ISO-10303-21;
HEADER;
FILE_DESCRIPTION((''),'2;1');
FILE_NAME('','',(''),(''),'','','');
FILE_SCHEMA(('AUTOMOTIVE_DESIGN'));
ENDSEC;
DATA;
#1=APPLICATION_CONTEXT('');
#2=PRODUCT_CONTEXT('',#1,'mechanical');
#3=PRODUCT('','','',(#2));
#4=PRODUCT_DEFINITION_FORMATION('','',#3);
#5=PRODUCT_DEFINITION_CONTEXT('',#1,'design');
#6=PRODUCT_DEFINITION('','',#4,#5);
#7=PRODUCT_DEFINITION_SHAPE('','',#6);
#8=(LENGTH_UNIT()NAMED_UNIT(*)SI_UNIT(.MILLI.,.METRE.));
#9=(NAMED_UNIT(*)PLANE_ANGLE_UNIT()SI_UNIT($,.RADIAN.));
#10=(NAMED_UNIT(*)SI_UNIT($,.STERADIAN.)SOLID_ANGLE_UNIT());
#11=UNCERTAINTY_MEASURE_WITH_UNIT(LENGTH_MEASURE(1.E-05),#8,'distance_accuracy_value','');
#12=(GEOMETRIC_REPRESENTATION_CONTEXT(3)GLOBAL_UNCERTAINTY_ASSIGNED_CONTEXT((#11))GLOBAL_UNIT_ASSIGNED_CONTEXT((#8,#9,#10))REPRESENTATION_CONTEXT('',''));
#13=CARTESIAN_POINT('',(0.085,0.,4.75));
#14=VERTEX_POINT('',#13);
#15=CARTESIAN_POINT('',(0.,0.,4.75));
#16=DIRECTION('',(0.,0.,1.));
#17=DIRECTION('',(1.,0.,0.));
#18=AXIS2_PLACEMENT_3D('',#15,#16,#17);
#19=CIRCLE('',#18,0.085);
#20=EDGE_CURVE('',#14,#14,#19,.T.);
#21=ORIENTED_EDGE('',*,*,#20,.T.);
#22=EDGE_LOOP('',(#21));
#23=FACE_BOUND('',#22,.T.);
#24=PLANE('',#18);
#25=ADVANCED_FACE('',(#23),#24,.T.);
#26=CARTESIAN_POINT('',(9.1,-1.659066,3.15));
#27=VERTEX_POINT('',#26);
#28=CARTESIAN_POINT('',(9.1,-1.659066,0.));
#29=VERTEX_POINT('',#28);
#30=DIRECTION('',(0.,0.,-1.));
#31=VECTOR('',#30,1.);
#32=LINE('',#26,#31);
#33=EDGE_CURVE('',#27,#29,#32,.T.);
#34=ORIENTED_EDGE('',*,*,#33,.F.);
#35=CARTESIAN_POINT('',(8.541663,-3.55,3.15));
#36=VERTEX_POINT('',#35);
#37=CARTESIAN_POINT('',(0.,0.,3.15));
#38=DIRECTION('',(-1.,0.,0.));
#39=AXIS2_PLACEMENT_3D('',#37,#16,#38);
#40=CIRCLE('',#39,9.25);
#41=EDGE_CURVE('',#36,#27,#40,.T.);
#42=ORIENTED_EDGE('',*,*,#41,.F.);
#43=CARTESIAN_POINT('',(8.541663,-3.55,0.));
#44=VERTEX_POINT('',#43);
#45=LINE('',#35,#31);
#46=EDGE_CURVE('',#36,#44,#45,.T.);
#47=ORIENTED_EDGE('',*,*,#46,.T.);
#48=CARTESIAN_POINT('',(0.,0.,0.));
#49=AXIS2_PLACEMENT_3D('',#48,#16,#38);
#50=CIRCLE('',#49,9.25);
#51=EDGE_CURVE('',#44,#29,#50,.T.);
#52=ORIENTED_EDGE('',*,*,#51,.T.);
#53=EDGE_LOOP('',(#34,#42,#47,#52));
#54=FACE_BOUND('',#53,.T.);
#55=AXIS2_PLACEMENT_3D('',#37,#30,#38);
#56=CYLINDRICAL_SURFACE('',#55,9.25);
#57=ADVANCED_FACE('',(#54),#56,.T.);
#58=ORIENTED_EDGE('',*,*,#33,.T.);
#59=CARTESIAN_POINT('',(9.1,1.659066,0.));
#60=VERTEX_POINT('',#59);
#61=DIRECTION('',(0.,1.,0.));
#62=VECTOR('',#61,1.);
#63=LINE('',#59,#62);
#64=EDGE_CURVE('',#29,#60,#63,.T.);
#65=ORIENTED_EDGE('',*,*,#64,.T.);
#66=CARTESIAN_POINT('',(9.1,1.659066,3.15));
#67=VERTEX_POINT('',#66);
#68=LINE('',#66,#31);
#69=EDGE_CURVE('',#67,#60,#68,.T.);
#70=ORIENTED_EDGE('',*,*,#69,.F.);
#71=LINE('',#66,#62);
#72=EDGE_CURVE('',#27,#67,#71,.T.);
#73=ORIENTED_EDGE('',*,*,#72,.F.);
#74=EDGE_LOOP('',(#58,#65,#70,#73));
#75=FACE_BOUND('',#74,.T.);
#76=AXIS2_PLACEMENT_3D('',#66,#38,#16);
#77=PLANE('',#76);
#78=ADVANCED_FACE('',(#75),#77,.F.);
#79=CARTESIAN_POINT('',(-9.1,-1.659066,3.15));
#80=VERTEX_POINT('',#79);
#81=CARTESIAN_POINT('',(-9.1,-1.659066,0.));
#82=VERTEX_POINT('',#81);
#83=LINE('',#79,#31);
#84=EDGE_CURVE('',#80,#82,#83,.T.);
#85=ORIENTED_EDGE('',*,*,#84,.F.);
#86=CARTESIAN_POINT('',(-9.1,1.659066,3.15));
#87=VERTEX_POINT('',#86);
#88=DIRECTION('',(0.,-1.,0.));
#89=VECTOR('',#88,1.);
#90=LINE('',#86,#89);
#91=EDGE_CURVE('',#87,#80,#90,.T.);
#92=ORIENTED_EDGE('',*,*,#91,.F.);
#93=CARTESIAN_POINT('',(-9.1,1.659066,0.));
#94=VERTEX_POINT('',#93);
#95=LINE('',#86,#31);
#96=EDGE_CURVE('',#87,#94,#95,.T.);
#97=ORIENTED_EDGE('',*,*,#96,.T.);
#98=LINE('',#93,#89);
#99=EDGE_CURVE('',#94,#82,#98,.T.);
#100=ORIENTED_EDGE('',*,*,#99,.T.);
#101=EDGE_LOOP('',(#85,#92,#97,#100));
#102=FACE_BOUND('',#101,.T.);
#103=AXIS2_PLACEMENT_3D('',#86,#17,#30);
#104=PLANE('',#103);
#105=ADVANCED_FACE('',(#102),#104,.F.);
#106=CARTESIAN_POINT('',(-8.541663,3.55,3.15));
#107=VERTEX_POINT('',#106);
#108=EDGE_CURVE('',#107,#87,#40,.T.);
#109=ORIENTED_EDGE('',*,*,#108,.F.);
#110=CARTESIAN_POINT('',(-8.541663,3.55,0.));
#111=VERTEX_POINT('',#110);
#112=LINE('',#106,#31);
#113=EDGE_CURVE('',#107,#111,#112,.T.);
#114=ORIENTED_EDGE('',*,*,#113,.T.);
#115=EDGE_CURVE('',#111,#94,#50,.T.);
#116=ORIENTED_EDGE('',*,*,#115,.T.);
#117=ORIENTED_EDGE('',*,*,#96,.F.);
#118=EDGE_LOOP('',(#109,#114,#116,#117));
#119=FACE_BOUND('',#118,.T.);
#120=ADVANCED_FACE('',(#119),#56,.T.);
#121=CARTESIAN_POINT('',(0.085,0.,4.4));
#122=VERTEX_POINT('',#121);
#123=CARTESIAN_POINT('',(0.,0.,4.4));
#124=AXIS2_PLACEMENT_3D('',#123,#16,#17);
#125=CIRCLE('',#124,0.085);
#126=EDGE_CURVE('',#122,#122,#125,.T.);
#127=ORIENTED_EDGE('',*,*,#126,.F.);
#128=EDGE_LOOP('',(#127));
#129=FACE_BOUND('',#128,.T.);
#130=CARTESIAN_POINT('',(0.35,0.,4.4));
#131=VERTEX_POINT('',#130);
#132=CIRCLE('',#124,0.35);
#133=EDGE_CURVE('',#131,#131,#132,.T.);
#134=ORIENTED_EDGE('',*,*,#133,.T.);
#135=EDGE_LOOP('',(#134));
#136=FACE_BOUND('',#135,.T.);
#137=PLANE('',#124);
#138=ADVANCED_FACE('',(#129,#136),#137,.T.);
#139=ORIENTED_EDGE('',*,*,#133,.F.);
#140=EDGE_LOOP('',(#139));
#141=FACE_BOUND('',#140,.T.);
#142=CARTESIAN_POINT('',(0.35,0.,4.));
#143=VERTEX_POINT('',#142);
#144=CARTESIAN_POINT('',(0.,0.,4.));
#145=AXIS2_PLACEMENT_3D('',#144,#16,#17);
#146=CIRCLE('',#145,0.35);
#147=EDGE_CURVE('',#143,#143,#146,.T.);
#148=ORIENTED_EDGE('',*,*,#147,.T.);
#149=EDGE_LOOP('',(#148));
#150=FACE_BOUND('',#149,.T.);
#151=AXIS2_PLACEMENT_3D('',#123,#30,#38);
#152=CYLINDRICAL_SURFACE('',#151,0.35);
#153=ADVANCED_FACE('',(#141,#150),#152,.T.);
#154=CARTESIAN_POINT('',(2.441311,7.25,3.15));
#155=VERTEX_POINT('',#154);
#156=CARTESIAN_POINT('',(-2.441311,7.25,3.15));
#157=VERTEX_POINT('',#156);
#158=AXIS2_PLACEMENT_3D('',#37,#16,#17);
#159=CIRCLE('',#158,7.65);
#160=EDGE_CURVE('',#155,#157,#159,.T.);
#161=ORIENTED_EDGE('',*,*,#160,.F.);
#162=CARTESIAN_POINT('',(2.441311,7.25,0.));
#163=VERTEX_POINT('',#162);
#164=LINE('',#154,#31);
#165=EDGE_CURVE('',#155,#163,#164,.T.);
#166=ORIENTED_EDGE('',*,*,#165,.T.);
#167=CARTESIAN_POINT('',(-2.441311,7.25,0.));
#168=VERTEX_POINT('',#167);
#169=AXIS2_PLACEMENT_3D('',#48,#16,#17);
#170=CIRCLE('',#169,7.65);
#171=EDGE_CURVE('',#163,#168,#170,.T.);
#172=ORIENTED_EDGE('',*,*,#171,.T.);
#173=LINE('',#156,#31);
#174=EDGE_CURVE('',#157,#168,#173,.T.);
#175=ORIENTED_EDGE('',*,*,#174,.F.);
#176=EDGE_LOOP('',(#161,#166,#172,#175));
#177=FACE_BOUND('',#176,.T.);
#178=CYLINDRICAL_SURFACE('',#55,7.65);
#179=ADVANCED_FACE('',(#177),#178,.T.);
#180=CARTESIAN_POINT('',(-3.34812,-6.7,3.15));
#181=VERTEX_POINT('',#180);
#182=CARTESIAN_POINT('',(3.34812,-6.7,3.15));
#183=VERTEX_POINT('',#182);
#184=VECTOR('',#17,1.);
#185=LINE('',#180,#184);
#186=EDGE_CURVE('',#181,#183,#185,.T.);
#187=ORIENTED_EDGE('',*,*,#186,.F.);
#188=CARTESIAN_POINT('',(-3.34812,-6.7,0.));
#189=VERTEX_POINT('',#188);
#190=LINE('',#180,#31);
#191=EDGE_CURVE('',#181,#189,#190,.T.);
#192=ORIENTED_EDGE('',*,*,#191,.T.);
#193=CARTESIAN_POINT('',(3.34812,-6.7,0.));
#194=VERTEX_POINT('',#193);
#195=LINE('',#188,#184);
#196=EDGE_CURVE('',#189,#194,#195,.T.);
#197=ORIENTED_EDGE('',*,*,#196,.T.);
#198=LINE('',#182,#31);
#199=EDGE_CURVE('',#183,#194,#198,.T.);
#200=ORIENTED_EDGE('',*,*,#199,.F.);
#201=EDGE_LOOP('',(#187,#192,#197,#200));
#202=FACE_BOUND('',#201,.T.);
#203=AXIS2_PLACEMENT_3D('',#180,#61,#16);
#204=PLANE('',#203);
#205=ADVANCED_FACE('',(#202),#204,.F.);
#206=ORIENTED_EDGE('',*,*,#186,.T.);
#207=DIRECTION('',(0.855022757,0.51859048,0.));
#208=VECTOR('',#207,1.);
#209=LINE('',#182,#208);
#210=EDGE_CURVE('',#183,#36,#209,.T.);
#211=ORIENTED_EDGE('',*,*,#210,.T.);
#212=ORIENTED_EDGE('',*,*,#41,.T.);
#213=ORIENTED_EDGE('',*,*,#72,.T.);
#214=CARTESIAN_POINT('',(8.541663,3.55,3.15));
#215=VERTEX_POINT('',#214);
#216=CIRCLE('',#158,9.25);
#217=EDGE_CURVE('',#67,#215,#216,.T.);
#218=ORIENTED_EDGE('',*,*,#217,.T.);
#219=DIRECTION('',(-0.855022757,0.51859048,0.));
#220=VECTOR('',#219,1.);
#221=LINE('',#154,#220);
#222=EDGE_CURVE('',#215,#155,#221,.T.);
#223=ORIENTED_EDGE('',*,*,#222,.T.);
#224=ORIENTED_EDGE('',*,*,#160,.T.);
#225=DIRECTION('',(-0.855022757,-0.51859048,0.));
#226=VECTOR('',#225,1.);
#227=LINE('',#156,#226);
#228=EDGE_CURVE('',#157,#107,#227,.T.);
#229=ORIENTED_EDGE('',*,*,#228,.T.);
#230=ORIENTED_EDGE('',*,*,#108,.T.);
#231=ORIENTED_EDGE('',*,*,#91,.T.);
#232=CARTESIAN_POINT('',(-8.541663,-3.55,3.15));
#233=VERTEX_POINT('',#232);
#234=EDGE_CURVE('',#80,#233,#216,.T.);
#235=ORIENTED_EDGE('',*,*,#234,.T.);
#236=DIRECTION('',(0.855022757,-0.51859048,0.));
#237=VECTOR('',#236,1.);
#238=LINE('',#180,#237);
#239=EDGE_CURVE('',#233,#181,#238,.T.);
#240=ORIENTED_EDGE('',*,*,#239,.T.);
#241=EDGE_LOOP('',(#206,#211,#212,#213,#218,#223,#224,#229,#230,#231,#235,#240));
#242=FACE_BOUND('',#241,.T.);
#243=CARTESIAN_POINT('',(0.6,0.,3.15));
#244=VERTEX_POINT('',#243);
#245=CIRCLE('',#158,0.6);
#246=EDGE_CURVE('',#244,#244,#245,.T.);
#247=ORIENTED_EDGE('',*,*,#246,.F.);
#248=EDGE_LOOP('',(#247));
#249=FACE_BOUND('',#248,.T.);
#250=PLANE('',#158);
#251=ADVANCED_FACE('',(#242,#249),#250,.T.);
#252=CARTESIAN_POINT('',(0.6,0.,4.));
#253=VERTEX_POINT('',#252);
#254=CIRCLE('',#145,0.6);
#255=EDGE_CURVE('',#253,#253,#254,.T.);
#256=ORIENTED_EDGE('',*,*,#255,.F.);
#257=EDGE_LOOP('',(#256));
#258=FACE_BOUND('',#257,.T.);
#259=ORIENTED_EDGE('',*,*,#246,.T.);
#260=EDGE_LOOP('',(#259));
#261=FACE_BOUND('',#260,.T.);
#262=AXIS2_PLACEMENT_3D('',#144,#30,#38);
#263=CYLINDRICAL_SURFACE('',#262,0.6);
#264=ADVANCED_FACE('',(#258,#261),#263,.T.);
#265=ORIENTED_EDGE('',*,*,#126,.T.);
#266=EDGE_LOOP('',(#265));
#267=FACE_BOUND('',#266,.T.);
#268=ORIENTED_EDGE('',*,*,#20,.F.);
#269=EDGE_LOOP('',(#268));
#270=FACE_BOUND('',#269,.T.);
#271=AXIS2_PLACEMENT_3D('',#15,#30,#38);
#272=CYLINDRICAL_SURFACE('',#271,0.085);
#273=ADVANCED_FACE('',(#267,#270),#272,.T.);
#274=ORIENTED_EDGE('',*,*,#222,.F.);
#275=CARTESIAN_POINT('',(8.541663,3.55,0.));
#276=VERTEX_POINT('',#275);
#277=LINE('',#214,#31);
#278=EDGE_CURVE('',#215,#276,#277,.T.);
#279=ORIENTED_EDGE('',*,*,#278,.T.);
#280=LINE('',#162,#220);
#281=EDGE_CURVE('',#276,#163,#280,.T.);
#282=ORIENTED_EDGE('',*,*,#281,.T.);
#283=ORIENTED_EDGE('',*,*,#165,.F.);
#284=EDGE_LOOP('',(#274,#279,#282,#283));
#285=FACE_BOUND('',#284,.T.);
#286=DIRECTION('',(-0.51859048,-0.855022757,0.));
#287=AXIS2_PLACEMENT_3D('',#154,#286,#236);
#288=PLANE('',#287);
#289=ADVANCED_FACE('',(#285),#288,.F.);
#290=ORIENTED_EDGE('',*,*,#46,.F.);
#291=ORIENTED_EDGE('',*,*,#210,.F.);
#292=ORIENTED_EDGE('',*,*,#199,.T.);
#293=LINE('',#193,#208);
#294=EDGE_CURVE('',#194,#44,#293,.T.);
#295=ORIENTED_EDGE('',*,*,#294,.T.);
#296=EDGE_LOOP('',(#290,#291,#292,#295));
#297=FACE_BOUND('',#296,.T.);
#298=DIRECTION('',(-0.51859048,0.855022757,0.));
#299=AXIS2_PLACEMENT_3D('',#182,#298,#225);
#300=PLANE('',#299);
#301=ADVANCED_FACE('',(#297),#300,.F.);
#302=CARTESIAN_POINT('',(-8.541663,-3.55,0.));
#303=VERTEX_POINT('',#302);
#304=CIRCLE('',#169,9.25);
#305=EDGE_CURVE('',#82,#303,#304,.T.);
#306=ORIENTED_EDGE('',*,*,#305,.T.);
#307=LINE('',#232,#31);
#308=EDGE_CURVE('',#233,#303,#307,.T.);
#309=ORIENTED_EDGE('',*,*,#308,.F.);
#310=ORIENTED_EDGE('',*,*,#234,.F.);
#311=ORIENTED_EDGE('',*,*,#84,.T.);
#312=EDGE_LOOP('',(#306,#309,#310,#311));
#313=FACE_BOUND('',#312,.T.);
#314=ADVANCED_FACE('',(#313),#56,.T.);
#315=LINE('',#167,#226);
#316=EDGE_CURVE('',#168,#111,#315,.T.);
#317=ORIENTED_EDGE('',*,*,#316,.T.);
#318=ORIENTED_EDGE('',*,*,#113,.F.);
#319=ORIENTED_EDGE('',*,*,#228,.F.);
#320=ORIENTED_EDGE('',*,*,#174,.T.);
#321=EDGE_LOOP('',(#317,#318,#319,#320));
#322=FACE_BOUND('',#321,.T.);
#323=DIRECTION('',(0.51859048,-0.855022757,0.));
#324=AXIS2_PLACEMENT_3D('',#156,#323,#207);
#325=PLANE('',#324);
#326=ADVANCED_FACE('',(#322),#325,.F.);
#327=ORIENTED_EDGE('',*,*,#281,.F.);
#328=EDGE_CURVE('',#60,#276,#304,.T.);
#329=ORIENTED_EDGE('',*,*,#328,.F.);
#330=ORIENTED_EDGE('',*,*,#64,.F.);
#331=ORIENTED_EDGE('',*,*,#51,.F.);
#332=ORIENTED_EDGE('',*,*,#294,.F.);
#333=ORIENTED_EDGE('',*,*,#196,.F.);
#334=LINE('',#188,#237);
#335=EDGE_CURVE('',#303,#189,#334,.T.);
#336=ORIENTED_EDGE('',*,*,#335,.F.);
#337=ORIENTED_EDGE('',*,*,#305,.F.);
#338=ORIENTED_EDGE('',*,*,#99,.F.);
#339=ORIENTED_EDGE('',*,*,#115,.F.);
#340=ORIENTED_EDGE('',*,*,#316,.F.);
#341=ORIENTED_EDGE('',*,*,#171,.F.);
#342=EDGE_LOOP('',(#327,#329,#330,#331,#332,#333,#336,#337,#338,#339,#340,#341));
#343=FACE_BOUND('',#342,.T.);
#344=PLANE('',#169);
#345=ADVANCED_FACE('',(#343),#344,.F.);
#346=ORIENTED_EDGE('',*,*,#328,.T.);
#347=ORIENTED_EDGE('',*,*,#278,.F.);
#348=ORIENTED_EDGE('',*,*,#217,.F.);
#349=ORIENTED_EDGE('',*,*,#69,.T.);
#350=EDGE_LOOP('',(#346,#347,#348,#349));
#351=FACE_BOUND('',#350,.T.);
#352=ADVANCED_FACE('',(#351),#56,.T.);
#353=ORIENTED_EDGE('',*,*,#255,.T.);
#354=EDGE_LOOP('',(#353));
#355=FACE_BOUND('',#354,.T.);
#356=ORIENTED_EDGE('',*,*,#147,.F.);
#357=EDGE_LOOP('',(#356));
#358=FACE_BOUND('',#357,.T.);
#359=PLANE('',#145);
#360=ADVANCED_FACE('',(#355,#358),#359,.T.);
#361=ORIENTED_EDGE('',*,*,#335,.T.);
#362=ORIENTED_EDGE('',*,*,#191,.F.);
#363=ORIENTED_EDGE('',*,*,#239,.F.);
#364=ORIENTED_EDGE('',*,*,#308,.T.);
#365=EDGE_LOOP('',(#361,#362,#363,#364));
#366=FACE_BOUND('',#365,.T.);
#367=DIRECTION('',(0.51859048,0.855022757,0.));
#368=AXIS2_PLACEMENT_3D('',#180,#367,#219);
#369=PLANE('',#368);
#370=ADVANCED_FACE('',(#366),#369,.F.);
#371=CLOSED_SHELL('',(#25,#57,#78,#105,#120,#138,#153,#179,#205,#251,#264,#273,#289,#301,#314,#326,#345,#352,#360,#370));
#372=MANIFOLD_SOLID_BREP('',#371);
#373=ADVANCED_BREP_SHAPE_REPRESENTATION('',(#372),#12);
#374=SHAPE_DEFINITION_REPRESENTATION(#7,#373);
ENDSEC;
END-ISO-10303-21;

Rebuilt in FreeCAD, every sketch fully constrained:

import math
import FreeCAD as App
import Part
import Sketcher

V = App.Vector

doc = App.newDocument("Part")
body = doc.addObject("PartDesign::Body", "Body")

# Sketch on XY plane
sketch1 = doc.addObject("Sketcher::SketchObject", "Sketch")
body.addObject(sketch1)
sketch1.AttachmentSupport = (doc.XY_Plane, [""])
sketch1.MapMode = "FlatFace"
sketch1.addGeometry([
    Part.LineSegment(V(9.1, -1.7, 0), V(9.1, 1.7, 0)),  # 0
    Part.ArcOfCircle(Part.Circle(V(0, 0, 0), V(0, 0, 1), 9.3), math.radians(10.33), math.radians(22.57)),  # 1
    Part.LineSegment(V(8.5, 3.5, 0), V(2.4, 7.2, 0)),  # 2
    Part.ArcOfCircle(Part.Circle(V(0, 0, 0), V(0, 0, 1), 7.6), math.radians(71), math.radians(109)),  # 3
    Part.LineSegment(V(-2.4, 7.2, 0), V(-8.5, 3.5, 0)),  # 4
    Part.ArcOfCircle(Part.Circle(V(0, 0, 0), V(0, 0, 1), 9.3), math.radians(157.43), math.radians(169.67)),  # 5
    Part.LineSegment(V(-9.1, 1.7, 0), V(-9.1, -1.7, 0)),  # 6
    Part.ArcOfCircle(Part.Circle(V(0, 0, 0), V(0, 0, 1), 9.3), math.radians(-169.67), math.radians(-157.43)),  # 7
    Part.LineSegment(V(-8.5, -3.5, 0), V(-3.3, -6.7, 0)),  # 8
    Part.LineSegment(V(-3.3, -6.7, 0), V(3.3, -6.7, 0)),  # 9
    Part.LineSegment(V(3.3, -6.7, 0), V(8.5, -3.5, 0)),  # 10
    Part.ArcOfCircle(Part.Circle(V(0, 0, 0), V(0, 0, 1), 9.3), math.radians(-22.57), math.radians(-10.33)),  # 11
], False)
sketch1.addConstraint([
    Sketcher.Constraint("Coincident", 0, 2, 1, 1),
    Sketcher.Constraint("Coincident", 1, 2, 2, 1),
    Sketcher.Constraint("Coincident", 2, 2, 3, 1),
    Sketcher.Constraint("Coincident", 3, 2, 4, 1),
    Sketcher.Constraint("Coincident", 4, 2, 5, 1),
    Sketcher.Constraint("Coincident", 5, 2, 6, 1),
    Sketcher.Constraint("Coincident", 6, 2, 7, 1),
    Sketcher.Constraint("Coincident", 7, 2, 8, 1),
    Sketcher.Constraint("Coincident", 8, 2, 9, 1),
    Sketcher.Constraint("Coincident", 9, 2, 10, 1),
    Sketcher.Constraint("Coincident", 10, 2, 11, 1),
    Sketcher.Constraint("Coincident", 11, 2, 0, 1),
    Sketcher.Constraint("Vertical", 0),
    Sketcher.Constraint("Vertical", 6),
    Sketcher.Constraint("Horizontal", 9),
    Sketcher.Constraint("Coincident", 1, 3, -1, 1),
    Sketcher.Constraint("Coincident", 3, 3, -1, 1),
    Sketcher.Constraint("Coincident", 5, 3, -1, 1),
    Sketcher.Constraint("Coincident", 7, 3, -1, 1),
    Sketcher.Constraint("Coincident", 11, 3, -1, 1),
    Sketcher.Constraint("Equal", 1, 5),
    Sketcher.Constraint("Equal", 5, 7),
    Sketcher.Constraint("Equal", 7, 11),
    Sketcher.Constraint("Parallel", 2, 8),
    Sketcher.Constraint("Parallel", 4, 10),
    Sketcher.Constraint("Horizontal", 2, 2, 3, 2),
    Sketcher.Constraint("Horizontal", 1, 2, 4, 2),
    Sketcher.Constraint("Horizontal", 0, 2, 5, 2),
    Sketcher.Constraint("Horizontal", 7, 2, 10, 2),
    Sketcher.Constraint("Vertical", 4, 2, 7, 2),
    Sketcher.Constraint("Radius", 1, 9.25),
    Sketcher.Constraint("Radius", 3, 7.65),
    Sketcher.Constraint("DistanceX", -1, 1, 0, 2, 9.1),
    Sketcher.Constraint("DistanceY", 8, 2, -1, 1, 6.7),
    Sketcher.Constraint("DistanceY", 1, 2, 2, 2, 3.7),
    Sketcher.Constraint("DistanceY", 7, 2, 4, 2, 7.1),
])
pad1 = doc.addObject("PartDesign::Pad", "Pad")
body.addObject(pad1)
pad1.Profile = sketch1
pad1.Length = 3.15

# Sketch on XY plane
sketch2 = doc.addObject("Sketcher::SketchObject", "Sketch001")
body.addObject(sketch2)
sketch2.AttachmentSupport = (doc.XY_Plane, [""])
sketch2.MapMode = "FlatFace"
sketch2.AttachmentOffset = App.Placement(V(0, 0, 3.15), App.Rotation())
sketch2.addGeometry(Part.Circle(V(0, 0, 0), V(0, 0, 1), 0.6), False)
sketch2.addConstraint([
    Sketcher.Constraint("Coincident", 0, 3, -1, 1),
    Sketcher.Constraint("Diameter", 0, 1.2),
])
pad2 = doc.addObject("PartDesign::Pad", "Pad001")
body.addObject(pad2)
pad2.Profile = sketch2
pad2.Length = 0.85

# Sketch on XY plane
sketch3 = doc.addObject("Sketcher::SketchObject", "Sketch002")
body.addObject(sketch3)
sketch3.AttachmentSupport = (doc.XY_Plane, [""])
sketch3.MapMode = "FlatFace"
sketch3.AttachmentOffset = App.Placement(V(0, 0, 4), App.Rotation())
sketch3.addGeometry(Part.Circle(V(0, 0, 0), V(0, 0, 1), 0.35), False)
sketch3.addConstraint([
    Sketcher.Constraint("Coincident", 0, 3, -1, 1),
    Sketcher.Constraint("Diameter", 0, 0.7),
])
pad3 = doc.addObject("PartDesign::Pad", "Pad002")
body.addObject(pad3)
pad3.Profile = sketch3
pad3.Length = 0.4

# Sketch on XY plane
sketch4 = doc.addObject("Sketcher::SketchObject", "Sketch003")
body.addObject(sketch4)
sketch4.AttachmentSupport = (doc.XY_Plane, [""])
sketch4.MapMode = "FlatFace"
sketch4.AttachmentOffset = App.Placement(V(0, 0, 4.4), App.Rotation())
sketch4.addGeometry(Part.Circle(V(0, 0, 0), V(0, 0, 1), 0.09), False)
sketch4.addConstraint([
    Sketcher.Constraint("Coincident", 0, 3, -1, 1),
    Sketcher.Constraint("Diameter", 0, 0.17),
])
pad4 = doc.addObject("PartDesign::Pad", "Pad003")
body.addObject(pad4)
pad4.Profile = sketch4
pad4.Length = 0.35

doc.recompute()
